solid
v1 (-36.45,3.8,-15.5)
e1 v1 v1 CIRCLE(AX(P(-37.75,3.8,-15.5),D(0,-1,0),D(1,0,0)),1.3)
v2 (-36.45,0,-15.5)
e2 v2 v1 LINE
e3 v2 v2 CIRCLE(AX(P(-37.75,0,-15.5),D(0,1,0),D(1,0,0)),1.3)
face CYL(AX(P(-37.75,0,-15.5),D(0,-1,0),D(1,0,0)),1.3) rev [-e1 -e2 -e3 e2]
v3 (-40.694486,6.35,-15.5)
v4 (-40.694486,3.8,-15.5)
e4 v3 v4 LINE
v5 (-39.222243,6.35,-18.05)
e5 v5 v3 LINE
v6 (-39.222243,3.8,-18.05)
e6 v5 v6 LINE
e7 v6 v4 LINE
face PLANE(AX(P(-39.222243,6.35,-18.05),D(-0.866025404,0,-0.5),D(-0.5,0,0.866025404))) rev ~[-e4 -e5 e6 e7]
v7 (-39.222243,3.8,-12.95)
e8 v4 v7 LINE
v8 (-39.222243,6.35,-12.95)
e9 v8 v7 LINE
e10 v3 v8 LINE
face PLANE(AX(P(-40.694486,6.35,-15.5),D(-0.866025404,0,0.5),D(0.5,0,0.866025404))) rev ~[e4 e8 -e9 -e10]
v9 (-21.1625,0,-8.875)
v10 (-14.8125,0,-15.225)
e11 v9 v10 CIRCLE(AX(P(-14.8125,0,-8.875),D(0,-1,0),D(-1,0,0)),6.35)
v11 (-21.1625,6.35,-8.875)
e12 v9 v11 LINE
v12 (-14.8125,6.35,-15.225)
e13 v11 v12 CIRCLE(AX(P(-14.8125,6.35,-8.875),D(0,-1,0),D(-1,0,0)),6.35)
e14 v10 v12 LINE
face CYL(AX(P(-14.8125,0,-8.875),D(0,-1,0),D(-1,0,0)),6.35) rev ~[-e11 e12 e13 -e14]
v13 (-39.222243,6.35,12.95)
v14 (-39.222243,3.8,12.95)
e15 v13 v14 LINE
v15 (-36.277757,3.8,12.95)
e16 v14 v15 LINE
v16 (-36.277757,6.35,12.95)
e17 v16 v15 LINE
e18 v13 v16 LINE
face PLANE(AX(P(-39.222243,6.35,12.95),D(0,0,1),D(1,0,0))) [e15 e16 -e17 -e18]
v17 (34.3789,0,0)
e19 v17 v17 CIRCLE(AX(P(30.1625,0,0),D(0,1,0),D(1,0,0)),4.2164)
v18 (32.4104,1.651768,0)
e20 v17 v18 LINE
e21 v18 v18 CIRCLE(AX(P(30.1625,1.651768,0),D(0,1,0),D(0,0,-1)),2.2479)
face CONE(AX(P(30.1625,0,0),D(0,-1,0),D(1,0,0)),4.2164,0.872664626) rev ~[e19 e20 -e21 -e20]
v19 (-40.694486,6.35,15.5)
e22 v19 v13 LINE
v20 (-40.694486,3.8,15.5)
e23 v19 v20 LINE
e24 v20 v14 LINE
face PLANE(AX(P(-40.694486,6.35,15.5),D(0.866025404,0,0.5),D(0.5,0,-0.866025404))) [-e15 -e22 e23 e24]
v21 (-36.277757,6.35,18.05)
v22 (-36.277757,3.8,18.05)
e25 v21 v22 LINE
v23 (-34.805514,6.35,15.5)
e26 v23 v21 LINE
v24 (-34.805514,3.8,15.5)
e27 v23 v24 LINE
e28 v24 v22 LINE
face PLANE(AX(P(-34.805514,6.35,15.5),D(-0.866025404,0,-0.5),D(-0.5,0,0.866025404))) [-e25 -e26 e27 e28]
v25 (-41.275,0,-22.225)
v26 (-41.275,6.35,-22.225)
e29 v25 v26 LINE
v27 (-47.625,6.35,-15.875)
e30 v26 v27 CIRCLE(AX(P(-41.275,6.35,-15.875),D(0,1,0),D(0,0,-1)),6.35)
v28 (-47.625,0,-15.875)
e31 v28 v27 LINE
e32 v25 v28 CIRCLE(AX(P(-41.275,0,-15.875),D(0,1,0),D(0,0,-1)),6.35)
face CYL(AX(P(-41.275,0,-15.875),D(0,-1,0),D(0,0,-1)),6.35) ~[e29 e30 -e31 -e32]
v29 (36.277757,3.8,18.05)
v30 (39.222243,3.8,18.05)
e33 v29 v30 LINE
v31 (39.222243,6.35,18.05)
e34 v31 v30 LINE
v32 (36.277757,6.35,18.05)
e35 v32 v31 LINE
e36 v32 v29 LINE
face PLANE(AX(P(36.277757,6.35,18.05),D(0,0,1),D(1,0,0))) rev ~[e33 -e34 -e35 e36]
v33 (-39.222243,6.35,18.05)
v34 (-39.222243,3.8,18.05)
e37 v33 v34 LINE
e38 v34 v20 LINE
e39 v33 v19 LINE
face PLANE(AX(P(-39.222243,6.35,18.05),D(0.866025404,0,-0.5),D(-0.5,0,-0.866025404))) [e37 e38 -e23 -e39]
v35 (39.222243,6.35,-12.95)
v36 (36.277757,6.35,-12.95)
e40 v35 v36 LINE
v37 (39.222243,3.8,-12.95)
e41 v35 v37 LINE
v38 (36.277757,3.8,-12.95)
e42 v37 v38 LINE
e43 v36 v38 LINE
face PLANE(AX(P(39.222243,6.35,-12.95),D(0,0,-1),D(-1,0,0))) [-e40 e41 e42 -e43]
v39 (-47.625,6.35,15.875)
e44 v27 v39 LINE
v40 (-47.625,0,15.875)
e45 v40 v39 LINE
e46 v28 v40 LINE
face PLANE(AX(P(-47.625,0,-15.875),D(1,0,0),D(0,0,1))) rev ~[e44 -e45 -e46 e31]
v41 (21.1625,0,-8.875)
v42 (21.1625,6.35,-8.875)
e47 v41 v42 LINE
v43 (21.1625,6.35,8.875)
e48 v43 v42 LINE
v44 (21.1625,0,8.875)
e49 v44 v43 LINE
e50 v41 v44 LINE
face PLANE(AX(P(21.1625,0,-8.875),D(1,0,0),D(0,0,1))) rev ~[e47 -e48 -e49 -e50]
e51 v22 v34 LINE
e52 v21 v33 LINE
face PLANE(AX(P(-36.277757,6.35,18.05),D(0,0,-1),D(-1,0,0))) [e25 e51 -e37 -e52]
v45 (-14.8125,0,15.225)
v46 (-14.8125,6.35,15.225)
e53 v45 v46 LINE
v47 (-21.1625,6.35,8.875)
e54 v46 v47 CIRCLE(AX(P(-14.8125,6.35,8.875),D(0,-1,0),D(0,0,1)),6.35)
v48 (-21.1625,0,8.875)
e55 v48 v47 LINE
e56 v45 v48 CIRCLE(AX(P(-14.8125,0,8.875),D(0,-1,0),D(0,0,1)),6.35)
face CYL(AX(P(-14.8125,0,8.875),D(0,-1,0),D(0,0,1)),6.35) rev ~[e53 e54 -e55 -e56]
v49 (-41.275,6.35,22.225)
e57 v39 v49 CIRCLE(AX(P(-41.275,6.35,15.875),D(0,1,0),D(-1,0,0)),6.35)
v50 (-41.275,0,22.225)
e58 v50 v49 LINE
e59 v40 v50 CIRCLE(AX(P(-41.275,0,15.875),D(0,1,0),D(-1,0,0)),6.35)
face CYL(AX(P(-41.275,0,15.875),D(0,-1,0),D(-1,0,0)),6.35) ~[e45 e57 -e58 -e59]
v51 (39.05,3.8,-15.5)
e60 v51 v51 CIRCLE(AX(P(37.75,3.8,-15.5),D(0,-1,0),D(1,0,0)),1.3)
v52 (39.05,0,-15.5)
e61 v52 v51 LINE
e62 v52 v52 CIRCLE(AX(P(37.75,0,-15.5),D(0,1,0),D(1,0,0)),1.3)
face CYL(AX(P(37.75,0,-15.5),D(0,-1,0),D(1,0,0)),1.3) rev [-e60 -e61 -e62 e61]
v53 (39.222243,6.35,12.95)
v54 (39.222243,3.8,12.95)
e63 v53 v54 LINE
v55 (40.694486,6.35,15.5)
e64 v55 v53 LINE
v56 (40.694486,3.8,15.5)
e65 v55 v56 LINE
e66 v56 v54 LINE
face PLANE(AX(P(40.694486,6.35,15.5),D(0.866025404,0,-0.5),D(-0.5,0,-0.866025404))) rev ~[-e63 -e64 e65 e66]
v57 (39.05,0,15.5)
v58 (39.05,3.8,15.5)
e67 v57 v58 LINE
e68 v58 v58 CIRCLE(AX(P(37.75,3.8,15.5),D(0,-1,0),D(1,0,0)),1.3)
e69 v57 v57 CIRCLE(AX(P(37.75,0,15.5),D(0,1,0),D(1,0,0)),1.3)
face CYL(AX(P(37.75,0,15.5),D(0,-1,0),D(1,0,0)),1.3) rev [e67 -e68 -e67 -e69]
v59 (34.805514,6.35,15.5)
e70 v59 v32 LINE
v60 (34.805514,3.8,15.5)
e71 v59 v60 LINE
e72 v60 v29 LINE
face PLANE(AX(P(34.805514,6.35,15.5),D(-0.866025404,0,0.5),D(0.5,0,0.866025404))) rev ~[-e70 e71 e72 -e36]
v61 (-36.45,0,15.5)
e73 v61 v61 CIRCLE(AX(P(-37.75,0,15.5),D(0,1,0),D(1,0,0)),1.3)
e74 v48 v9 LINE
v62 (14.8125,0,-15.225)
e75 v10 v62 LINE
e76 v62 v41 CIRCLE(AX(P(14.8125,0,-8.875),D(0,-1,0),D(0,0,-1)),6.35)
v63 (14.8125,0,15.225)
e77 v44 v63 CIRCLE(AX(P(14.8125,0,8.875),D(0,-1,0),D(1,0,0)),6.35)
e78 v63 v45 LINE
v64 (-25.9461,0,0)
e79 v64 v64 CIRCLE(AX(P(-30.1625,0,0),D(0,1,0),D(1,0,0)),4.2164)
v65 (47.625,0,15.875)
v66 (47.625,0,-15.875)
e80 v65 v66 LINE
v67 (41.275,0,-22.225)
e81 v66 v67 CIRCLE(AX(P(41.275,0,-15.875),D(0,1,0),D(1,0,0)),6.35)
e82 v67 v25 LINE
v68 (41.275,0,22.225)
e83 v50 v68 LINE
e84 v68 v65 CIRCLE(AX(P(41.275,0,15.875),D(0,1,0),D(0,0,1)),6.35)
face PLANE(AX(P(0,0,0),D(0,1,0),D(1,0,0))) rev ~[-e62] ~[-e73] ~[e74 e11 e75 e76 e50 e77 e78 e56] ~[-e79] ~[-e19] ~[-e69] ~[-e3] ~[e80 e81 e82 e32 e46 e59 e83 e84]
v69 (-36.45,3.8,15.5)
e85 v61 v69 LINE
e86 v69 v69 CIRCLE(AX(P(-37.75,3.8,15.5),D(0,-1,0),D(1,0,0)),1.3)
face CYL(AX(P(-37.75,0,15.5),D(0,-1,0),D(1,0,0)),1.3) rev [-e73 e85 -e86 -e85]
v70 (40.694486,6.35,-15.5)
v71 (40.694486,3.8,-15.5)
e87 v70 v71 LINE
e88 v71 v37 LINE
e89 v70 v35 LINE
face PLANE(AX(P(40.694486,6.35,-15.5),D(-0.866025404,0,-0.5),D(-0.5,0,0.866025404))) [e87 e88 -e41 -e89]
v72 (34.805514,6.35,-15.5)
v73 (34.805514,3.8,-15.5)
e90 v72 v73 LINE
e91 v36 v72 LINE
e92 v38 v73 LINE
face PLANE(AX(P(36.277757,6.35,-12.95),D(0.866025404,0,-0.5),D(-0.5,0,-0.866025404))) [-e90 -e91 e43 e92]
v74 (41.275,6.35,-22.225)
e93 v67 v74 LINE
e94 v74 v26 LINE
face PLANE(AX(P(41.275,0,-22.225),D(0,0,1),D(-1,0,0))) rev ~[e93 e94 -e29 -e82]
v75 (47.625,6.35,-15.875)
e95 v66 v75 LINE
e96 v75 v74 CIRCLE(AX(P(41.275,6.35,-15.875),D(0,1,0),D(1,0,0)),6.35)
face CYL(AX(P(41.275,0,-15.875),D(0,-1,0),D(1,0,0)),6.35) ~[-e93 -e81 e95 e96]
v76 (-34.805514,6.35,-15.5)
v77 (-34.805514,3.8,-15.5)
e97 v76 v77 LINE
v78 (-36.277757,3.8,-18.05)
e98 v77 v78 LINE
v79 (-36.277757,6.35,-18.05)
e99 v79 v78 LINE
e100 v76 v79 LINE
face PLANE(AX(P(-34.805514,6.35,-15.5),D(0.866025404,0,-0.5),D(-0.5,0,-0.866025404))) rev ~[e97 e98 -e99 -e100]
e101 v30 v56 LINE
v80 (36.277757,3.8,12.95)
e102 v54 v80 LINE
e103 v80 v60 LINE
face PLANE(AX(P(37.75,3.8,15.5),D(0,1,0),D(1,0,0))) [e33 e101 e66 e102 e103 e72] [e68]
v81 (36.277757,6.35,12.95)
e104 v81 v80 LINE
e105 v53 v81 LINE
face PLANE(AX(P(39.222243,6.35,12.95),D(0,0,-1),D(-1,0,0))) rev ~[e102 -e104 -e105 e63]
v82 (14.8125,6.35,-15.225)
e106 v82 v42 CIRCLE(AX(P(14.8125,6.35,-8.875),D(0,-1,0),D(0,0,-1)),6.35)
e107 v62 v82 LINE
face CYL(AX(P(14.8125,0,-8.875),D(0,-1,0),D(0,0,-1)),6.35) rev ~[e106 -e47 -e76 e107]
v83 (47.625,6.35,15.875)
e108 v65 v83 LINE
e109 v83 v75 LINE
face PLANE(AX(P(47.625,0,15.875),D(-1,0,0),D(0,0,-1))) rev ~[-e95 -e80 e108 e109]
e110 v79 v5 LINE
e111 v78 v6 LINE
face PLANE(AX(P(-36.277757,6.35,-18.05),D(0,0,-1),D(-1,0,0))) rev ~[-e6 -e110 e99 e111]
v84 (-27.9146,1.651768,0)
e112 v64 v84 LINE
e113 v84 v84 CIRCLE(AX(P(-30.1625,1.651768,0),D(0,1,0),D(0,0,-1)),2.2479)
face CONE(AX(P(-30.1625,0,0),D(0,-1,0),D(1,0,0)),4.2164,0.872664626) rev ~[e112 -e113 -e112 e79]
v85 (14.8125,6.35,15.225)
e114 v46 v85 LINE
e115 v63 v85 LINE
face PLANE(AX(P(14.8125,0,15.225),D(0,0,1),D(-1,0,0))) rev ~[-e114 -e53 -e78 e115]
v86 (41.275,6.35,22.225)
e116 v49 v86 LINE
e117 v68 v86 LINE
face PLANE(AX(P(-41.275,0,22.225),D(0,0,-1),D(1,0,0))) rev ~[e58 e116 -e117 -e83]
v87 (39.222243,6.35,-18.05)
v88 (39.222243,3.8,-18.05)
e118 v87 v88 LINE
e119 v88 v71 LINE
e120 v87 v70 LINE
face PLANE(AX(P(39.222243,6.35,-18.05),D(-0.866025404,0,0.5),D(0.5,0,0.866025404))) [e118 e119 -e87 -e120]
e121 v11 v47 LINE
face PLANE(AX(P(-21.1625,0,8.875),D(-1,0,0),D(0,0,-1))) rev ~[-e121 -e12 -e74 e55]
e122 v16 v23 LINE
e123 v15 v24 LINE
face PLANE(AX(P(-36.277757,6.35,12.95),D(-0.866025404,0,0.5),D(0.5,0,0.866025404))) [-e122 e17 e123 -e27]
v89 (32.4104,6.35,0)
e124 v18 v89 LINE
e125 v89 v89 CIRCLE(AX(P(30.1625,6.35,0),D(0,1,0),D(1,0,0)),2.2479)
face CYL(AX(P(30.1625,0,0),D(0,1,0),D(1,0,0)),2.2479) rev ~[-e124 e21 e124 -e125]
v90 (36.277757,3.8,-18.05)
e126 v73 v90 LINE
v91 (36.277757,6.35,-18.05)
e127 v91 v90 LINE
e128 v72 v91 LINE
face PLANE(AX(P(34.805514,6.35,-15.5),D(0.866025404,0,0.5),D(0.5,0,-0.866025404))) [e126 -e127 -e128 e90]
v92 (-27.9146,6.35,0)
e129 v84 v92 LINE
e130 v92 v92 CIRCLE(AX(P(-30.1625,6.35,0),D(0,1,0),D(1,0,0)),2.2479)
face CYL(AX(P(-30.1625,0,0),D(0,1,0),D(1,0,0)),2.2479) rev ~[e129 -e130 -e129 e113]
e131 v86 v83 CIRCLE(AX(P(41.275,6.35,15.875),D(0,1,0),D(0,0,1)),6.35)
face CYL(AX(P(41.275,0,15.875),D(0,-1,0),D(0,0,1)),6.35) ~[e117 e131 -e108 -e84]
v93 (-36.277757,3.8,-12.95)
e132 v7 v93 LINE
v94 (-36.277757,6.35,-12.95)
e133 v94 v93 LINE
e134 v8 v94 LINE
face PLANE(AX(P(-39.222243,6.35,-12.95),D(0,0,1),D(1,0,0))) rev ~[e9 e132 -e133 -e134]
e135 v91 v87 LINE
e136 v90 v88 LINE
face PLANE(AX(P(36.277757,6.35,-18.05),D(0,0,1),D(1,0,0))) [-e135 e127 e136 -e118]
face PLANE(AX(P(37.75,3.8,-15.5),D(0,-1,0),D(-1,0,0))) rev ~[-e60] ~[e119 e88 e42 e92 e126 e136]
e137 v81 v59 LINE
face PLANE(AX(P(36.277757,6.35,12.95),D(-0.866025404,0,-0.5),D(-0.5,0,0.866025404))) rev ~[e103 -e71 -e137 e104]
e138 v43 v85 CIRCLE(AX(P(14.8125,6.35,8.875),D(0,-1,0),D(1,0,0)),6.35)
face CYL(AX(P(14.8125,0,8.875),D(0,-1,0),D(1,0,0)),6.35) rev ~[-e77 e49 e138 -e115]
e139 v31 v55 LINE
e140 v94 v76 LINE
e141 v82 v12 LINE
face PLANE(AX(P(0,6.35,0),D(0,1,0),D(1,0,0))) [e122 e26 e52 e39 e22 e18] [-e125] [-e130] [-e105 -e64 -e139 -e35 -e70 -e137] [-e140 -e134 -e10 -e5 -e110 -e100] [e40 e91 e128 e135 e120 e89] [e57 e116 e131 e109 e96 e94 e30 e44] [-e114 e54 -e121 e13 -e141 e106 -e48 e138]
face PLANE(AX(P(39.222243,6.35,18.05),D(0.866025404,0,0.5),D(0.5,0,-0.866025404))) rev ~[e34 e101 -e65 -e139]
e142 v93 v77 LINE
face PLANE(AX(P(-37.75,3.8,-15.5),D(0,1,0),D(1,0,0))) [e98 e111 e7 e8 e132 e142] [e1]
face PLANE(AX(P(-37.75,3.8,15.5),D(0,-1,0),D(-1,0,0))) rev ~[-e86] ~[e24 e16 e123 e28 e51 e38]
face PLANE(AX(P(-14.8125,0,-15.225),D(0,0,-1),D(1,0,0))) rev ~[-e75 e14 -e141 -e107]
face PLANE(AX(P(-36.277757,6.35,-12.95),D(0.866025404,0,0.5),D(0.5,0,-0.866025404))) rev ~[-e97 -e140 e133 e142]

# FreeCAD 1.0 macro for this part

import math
import FreeCAD as App
import Part
import Sketcher
from FreeCAD import Vector
Q = App.Units.Quantity


def add_polygon(sketch, points):
    """Adds a closed chain of lines whose ends are joined by coincident constraints."""
    first, n = sketch.GeometryCount, len(points)
    for a, b in zip(points, points[1:] + points[:1]):
        sketch.addGeometry(Part.LineSegment(App.Vector(*a, 0), App.Vector(*b, 0)), False)
    for i in range(n):
        sketch.addConstraint(Sketcher.Constraint("Coincident", first + i, 2, first + (i + 1) % n, 1))

doc = App.newDocument("Part")
body = doc.addObject("PartDesign::Body", "Body")

sketch1 = body.newObject("Sketcher::SketchObject", "Sketch")
sketch1.AttachmentSupport = (doc.getObject("XZ_Plane"), [""])
sketch1.MapMode = "FlatFace"
sketch1.addGeometry(Part.LineSegment(Vector(41.275, -22.225, 0), Vector(-41.275, -22.225, 0)), False)
sketch1.addGeometry(Part.ArcOfCircle(Part.Circle(Vector(-41.275, -15.875, 0), Vector(0, 0, 1), 6.35), math.radians(180), math.radians(270)), False)
sketch1.addGeometry(Part.LineSegment(Vector(-47.625, -15.875, 0), Vector(-47.625, 15.875, 0)), False)
sketch1.addGeometry(Part.ArcOfCircle(Part.Circle(Vector(-41.275, 15.875, 0), Vector(0, 0, 1), 6.35), math.radians(90), math.radians(180)), False)
sketch1.addGeometry(Part.LineSegment(Vector(-41.275, 22.225, 0), Vector(41.275, 22.225, 0)), False)
sketch1.addGeometry(Part.ArcOfCircle(Part.Circle(Vector(41.275, 15.875, 0), Vector(0, 0, 1), 6.35), math.radians(0), math.radians(90)), False)
sketch1.addGeometry(Part.LineSegment(Vector(47.625, 15.875, 0), Vector(47.625, -15.875, 0)), False)
sketch1.addGeometry(Part.ArcOfCircle(Part.Circle(Vector(41.275, -15.875, 0), Vector(0, 0, 1), 6.35), math.radians(-90), math.radians(0)), False)
sketch1.addGeometry(Part.Circle(Vector(-37.75, 15.5, 0), Vector(0, 0, 1), 1.3), False)
sketch1.addGeometry(Part.Circle(Vector(37.75, 15.5, 0), Vector(0, 0, 1), 1.3), False)
sketch1.addGeometry(Part.Circle(Vector(-37.75, -15.5, 0), Vector(0, 0, 1), 1.3), False)
sketch1.addGeometry(Part.Circle(Vector(37.75, -15.5, 0), Vector(0, 0, 1), 1.3), False)
sketch1.addConstraint(Sketcher.Constraint("Tangent", 0, 2, 1, 2))
sketch1.addConstraint(Sketcher.Constraint("Tangent", 1, 1, 2, 1))
sketch1.addConstraint(Sketcher.Constraint("Tangent", 2, 2, 3, 2))
sketch1.addConstraint(Sketcher.Constraint("Tangent", 3, 1, 4, 1))
sketch1.addConstraint(Sketcher.Constraint("Tangent", 4, 2, 5, 2))
sketch1.addConstraint(Sketcher.Constraint("Tangent", 5, 1, 6, 1))
sketch1.addConstraint(Sketcher.Constraint("Tangent", 6, 2, 7, 2))
sketch1.addConstraint(Sketcher.Constraint("Tangent", 7, 1, 0, 1))
sketch1.addConstraint(Sketcher.Constraint("Horizontal", 0))
sketch1.addConstraint(Sketcher.Constraint("Vertical", 2))
sketch1.addConstraint(Sketcher.Constraint("Horizontal", 4))
sketch1.addConstraint(Sketcher.Constraint("Vertical", 6))
sketch1.addConstraint(Sketcher.Constraint("Equal", 1, 3))
sketch1.addConstraint(Sketcher.Constraint("Equal", 3, 5))
sketch1.addConstraint(Sketcher.Constraint("Equal", 5, 7))
sketch1.addConstraint(Sketcher.Constraint("Equal", 8, 9))
sketch1.addConstraint(Sketcher.Constraint("Equal", 9, 10))
sketch1.addConstraint(Sketcher.Constraint("Equal", 10, 11))
sketch1.addConstraint(Sketcher.Constraint("Symmetric", 1, 3, 5, 3, -1, 1))
sketch1.addConstraint(Sketcher.Constraint("Symmetric", 9, 3, 10, 3, -1, 1))
sketch1.addConstraint(Sketcher.Constraint("Symmetric", 8, 3, 11, 3, -1, 1))
sketch1.addConstraint(Sketcher.Constraint("Symmetric", 8, 3, 9, 3, -2))
sketch1.addConstraint(Sketcher.Constraint("Radius", 1, Q("0.25 in")))
sketch1.addConstraint(Sketcher.Constraint("DistanceX", 0, 2, 0, 1, Q("3.25 in")))
sketch1.addConstraint(Sketcher.Constraint("DistanceY", 2, 1, 2, 2, Q("1.25 in")))
sketch1.addConstraint(Sketcher.Constraint("Diameter", 8, 2.6))
sketch1.addConstraint(Sketcher.Constraint("DistanceX", 8, 3, -1, 1, 37.75))
sketch1.addConstraint(Sketcher.Constraint("DistanceY", -1, 1, 8, 3, 15.5))
pad1 = body.newObject("PartDesign::Pad", "Pad")
pad1.Profile = sketch1
pad1.Length = Q("0.25 in")
pad1.Reversed = True

sketch2 = body.newObject("Sketcher::SketchObject", "Sketch001")
sketch2.AttachmentSupport = (doc.getObject("XZ_Plane"), [""])
sketch2.MapMode = "FlatFace"
sketch2.AttachmentOffset = App.Placement(Vector(0, 0, -0.25 * 25.4), App.Rotation())
add_polygon(sketch2, [(-34.805514, -15.5), (-36.277757, -18.05), (-39.222243, -18.05), (-40.694486, -15.5), (-39.222243, -12.95), (-36.277757, -12.95)])
add_polygon(sketch2, [(34.805514, -15.5), (36.277757, -12.95), (39.222243, -12.95), (40.694486, -15.5), (39.222243, -18.05), (36.277757, -18.05)])
add_polygon(sketch2, [(34.805514, 15.5), (36.277757, 18.05), (39.222243, 18.05), (40.694486, 15.5), (39.222243, 12.95), (36.277757, 12.95)])
add_polygon(sketch2, [(-34.805514, 15.5), (-36.277757, 12.95), (-39.222243, 12.95), (-40.694486, 15.5), (-39.222243, 18.05), (-36.277757, 18.05)])
sketch2.addConstraint(Sketcher.Constraint("Horizontal", 1))
sketch2.addConstraint(Sketcher.Constraint("Horizontal", 4))
sketch2.addConstraint(Sketcher.Constraint("Horizontal", 7))
sketch2.addConstraint(Sketcher.Constraint("Horizontal", 10))
sketch2.addConstraint(Sketcher.Constraint("Horizontal", 13))
sketch2.addConstraint(Sketcher.Constraint("Horizontal", 16))
sketch2.addConstraint(Sketcher.Constraint("Horizontal", 19))
sketch2.addConstraint(Sketcher.Constraint("Horizontal", 22))
sketch2.addConstraint(Sketcher.Constraint("Symmetric", 0, 2, 12, 2, -1, 1))
sketch2.addConstraint(Sketcher.Constraint("Symmetric", 2, 2, 14, 2, -1, 1))
sketch2.addConstraint(Sketcher.Constraint("Symmetric", 3, 2, 15, 2, -1, 1))
sketch2.addConstraint(Sketcher.Constraint("Symmetric", 5, 2, 17, 2, -1, 1))
sketch2.addConstraint(Sketcher.Constraint("Symmetric", 6, 2, 18, 2, -1, 1))
sketch2.addConstraint(Sketcher.Constraint("Symmetric", 8, 2, 20, 2, -1, 1))
sketch2.addConstraint(Sketcher.Constraint("Symmetric", 9, 2, 21, 2, -1, 1))
sketch2.addConstraint(Sketcher.Constraint("Symmetric", 11, 2, 23, 2, -1, 1))
sketch2.addConstraint(Sketcher.Constraint("Symmetric", 4, 2, 6, 2, -2))
sketch2.addConstraint(Sketcher.Constraint("Symmetric", 2, 2, 8, 2, -2))
sketch2.addConstraint(Sketcher.Constraint("Symmetric", 1, 2, 9, 2, -2))
sketch2.addConstraint(Sketcher.Constraint("Symmetric", 5, 2, 11, 2, -2))
sketch2.addConstraint(Sketcher.Constraint("Parallel", 0, 3))
sketch2.addConstraint(Sketcher.Constraint("Parallel", 2, 5))
sketch2.addConstraint(Sketcher.Constraint("Parallel", 3, 6))
sketch2.addConstraint(Sketcher.Constraint("Parallel", 5, 8))
sketch2.addConstraint(Sketcher.Constraint("Parallel", 8, 11))
sketch2.addConstraint(Sketcher.Constraint("Parallel", 11, 14))
sketch2.addConstraint(Sketcher.Constraint("Parallel", 14, 17))
sketch2.addConstraint(Sketcher.Constraint("Parallel", 17, 20))
sketch2.addConstraint(Sketcher.Constraint("Parallel", 20, 23))
sketch2.addConstraint(Sketcher.Constraint("Horizontal", 2, 2, 5, 2))
sketch2.addConstraint(Sketcher.Constraint("Vertical", 1, 2, 3, 2))
sketch2.addConstraint(Sketcher.Constraint("Angle", 0, Q("-120 deg")))
sketch2.addConstraint(Sketcher.Constraint("DistanceY", 0, 2, -1, 1, 18.05))
sketch2.addConstraint(Sketcher.Constraint("DistanceY", 2, 2, -1, 1, 15.5))
sketch2.addConstraint(Sketcher.Constraint("DistanceX", 3, 2, 6, 2, 75.5))
sketch2.addConstraint(Sketcher.Constraint("DistanceX", 1, 2, 1, 1, 2.944486))
pocket1 = body.newObject("PartDesign::Pocket", "Pocket")
pocket1.Profile = sketch2
pocket1.Length = 2.55
pocket1.Reversed = True

sketch3 = body.newObject("Sketcher::SketchObject", "Sketch002")
sketch3.AttachmentSupport = (doc.getObject("XZ_Plane"), [""])
sketch3.MapMode = "FlatFace"
sketch3.addGeometry(Part.Circle(Vector(-30.1625, 0, 0), Vector(0, 0, 1), 2.2479), False)
sketch3.addGeometry(Part.Circle(Vector(30.1625, 0, 0), Vector(0, 0, 1), 2.2479), False)
sketch3.addConstraint(Sketcher.Constraint("Equal", 0, 1))
sketch3.addConstraint(Sketcher.Constraint("Symmetric", 0, 3, 1, 3, -1, 1))
sketch3.addConstraint(Sketcher.Constraint("PointOnObject", 0, 3, -1))
sketch3.addConstraint(Sketcher.Constraint("Diameter", 0, Q("0.177 in")))
sketch3.addConstraint(Sketcher.Constraint("DistanceX", 0, 3, -1, 1, Q("1.1875 in")))
doc.recompute()
hole = body.newObject("PartDesign::Hole", "Hole")
hole.Profile = sketch3
hole.ThreadType = "None"
hole.Diameter = Q("0.177 in")
hole.DepthType = "ThroughAll"
hole.HoleCutType = "Countersink"
hole.HoleCutDiameter = Q("0.332 in")
hole.HoleCutCountersinkAngle = 100

sketch4 = body.newObject("Sketcher::SketchObject", "Sketch003")
sketch4.AttachmentSupport = (doc.getObject("XZ_Plane"), [""])
sketch4.MapMode = "FlatFace"
sketch4.addGeometry(Part.LineSegment(Vector(-14.8125, -15.225, 0), Vector(14.8125, -15.225, 0)), False)
sketch4.addGeometry(Part.ArcOfCircle(Part.Circle(Vector(14.8125, -8.875, 0), Vector(0, 0, 1), 6.35), math.radians(-90), math.radians(0)), False)
sketch4.addGeometry(Part.LineSegment(Vector(21.1625, -8.875, 0), Vector(21.1625, 8.875, 0)), False)
sketch4.addGeometry(Part.ArcOfCircle(Part.Circle(Vector(14.8125, 8.875, 0), Vector(0, 0, 1), 6.35), math.radians(0), math.radians(90)), False)
sketch4.addGeometry(Part.LineSegment(Vector(14.8125, 15.225, 0), Vector(-14.8125, 15.225, 0)), False)
sketch4.addGeometry(Part.ArcOfCircle(Part.Circle(Vector(-14.8125, 8.875, 0), Vector(0, 0, 1), 6.35), math.radians(90), math.radians(180)), False)
sketch4.addGeometry(Part.LineSegment(Vector(-21.1625, 8.875, 0), Vector(-21.1625, -8.875, 0)), False)
sketch4.addGeometry(Part.ArcOfCircle(Part.Circle(Vector(-14.8125, -8.875, 0), Vector(0, 0, 1), 6.35), math.radians(180), math.radians(270)), False)
sketch4.addConstraint(Sketcher.Constraint("Tangent", 0, 2, 1, 1))
sketch4.addConstraint(Sketcher.Constraint("Tangent", 1, 2, 2, 1))
sketch4.addConstraint(Sketcher.Constraint("Tangent", 2, 2, 3, 1))
sketch4.addConstraint(Sketcher.Constraint("Tangent", 3, 2, 4, 1))
sketch4.addConstraint(Sketcher.Constraint("Tangent", 4, 2, 5, 1))
sketch4.addConstraint(Sketcher.Constraint("Tangent", 5, 2, 6, 1))
sketch4.addConstraint(Sketcher.Constraint("Tangent", 6, 2, 7, 1))
sketch4.addConstraint(Sketcher.Constraint("Tangent", 7, 2, 0, 1))
sketch4.addConstraint(Sketcher.Constraint("Horizontal", 0))
sketch4.addConstraint(Sketcher.Constraint("Vertical", 2))
sketch4.addConstraint(Sketcher.Constraint("Horizontal", 4))
sketch4.addConstraint(Sketcher.Constraint("Vertical", 6))
sketch4.addConstraint(Sketcher.Constraint("Equal", 1, 3))
sketch4.addConstraint(Sketcher.Constraint("Equal", 3, 5))
sketch4.addConstraint(Sketcher.Constraint("Equal", 5, 7))
sketch4.addConstraint(Sketcher.Constraint("Symmetric", 1, 3, 5, 3, -1, 1))
sketch4.addConstraint(Sketcher.Constraint("Radius", 1, Q("0.25 in")))
sketch4.addConstraint(Sketcher.Constraint("DistanceX", 0, 1, 0, 2, 29.625))
sketch4.addConstraint(Sketcher.Constraint("DistanceY", 2, 1, 2, 2, 17.75))
pocket2 = body.newObject("PartDesign::Pocket", "Pocket001")
pocket2.Profile = sketch4
pocket2.Type = "ThroughAll"
pocket2.Midplane = True

doc.recompute()
